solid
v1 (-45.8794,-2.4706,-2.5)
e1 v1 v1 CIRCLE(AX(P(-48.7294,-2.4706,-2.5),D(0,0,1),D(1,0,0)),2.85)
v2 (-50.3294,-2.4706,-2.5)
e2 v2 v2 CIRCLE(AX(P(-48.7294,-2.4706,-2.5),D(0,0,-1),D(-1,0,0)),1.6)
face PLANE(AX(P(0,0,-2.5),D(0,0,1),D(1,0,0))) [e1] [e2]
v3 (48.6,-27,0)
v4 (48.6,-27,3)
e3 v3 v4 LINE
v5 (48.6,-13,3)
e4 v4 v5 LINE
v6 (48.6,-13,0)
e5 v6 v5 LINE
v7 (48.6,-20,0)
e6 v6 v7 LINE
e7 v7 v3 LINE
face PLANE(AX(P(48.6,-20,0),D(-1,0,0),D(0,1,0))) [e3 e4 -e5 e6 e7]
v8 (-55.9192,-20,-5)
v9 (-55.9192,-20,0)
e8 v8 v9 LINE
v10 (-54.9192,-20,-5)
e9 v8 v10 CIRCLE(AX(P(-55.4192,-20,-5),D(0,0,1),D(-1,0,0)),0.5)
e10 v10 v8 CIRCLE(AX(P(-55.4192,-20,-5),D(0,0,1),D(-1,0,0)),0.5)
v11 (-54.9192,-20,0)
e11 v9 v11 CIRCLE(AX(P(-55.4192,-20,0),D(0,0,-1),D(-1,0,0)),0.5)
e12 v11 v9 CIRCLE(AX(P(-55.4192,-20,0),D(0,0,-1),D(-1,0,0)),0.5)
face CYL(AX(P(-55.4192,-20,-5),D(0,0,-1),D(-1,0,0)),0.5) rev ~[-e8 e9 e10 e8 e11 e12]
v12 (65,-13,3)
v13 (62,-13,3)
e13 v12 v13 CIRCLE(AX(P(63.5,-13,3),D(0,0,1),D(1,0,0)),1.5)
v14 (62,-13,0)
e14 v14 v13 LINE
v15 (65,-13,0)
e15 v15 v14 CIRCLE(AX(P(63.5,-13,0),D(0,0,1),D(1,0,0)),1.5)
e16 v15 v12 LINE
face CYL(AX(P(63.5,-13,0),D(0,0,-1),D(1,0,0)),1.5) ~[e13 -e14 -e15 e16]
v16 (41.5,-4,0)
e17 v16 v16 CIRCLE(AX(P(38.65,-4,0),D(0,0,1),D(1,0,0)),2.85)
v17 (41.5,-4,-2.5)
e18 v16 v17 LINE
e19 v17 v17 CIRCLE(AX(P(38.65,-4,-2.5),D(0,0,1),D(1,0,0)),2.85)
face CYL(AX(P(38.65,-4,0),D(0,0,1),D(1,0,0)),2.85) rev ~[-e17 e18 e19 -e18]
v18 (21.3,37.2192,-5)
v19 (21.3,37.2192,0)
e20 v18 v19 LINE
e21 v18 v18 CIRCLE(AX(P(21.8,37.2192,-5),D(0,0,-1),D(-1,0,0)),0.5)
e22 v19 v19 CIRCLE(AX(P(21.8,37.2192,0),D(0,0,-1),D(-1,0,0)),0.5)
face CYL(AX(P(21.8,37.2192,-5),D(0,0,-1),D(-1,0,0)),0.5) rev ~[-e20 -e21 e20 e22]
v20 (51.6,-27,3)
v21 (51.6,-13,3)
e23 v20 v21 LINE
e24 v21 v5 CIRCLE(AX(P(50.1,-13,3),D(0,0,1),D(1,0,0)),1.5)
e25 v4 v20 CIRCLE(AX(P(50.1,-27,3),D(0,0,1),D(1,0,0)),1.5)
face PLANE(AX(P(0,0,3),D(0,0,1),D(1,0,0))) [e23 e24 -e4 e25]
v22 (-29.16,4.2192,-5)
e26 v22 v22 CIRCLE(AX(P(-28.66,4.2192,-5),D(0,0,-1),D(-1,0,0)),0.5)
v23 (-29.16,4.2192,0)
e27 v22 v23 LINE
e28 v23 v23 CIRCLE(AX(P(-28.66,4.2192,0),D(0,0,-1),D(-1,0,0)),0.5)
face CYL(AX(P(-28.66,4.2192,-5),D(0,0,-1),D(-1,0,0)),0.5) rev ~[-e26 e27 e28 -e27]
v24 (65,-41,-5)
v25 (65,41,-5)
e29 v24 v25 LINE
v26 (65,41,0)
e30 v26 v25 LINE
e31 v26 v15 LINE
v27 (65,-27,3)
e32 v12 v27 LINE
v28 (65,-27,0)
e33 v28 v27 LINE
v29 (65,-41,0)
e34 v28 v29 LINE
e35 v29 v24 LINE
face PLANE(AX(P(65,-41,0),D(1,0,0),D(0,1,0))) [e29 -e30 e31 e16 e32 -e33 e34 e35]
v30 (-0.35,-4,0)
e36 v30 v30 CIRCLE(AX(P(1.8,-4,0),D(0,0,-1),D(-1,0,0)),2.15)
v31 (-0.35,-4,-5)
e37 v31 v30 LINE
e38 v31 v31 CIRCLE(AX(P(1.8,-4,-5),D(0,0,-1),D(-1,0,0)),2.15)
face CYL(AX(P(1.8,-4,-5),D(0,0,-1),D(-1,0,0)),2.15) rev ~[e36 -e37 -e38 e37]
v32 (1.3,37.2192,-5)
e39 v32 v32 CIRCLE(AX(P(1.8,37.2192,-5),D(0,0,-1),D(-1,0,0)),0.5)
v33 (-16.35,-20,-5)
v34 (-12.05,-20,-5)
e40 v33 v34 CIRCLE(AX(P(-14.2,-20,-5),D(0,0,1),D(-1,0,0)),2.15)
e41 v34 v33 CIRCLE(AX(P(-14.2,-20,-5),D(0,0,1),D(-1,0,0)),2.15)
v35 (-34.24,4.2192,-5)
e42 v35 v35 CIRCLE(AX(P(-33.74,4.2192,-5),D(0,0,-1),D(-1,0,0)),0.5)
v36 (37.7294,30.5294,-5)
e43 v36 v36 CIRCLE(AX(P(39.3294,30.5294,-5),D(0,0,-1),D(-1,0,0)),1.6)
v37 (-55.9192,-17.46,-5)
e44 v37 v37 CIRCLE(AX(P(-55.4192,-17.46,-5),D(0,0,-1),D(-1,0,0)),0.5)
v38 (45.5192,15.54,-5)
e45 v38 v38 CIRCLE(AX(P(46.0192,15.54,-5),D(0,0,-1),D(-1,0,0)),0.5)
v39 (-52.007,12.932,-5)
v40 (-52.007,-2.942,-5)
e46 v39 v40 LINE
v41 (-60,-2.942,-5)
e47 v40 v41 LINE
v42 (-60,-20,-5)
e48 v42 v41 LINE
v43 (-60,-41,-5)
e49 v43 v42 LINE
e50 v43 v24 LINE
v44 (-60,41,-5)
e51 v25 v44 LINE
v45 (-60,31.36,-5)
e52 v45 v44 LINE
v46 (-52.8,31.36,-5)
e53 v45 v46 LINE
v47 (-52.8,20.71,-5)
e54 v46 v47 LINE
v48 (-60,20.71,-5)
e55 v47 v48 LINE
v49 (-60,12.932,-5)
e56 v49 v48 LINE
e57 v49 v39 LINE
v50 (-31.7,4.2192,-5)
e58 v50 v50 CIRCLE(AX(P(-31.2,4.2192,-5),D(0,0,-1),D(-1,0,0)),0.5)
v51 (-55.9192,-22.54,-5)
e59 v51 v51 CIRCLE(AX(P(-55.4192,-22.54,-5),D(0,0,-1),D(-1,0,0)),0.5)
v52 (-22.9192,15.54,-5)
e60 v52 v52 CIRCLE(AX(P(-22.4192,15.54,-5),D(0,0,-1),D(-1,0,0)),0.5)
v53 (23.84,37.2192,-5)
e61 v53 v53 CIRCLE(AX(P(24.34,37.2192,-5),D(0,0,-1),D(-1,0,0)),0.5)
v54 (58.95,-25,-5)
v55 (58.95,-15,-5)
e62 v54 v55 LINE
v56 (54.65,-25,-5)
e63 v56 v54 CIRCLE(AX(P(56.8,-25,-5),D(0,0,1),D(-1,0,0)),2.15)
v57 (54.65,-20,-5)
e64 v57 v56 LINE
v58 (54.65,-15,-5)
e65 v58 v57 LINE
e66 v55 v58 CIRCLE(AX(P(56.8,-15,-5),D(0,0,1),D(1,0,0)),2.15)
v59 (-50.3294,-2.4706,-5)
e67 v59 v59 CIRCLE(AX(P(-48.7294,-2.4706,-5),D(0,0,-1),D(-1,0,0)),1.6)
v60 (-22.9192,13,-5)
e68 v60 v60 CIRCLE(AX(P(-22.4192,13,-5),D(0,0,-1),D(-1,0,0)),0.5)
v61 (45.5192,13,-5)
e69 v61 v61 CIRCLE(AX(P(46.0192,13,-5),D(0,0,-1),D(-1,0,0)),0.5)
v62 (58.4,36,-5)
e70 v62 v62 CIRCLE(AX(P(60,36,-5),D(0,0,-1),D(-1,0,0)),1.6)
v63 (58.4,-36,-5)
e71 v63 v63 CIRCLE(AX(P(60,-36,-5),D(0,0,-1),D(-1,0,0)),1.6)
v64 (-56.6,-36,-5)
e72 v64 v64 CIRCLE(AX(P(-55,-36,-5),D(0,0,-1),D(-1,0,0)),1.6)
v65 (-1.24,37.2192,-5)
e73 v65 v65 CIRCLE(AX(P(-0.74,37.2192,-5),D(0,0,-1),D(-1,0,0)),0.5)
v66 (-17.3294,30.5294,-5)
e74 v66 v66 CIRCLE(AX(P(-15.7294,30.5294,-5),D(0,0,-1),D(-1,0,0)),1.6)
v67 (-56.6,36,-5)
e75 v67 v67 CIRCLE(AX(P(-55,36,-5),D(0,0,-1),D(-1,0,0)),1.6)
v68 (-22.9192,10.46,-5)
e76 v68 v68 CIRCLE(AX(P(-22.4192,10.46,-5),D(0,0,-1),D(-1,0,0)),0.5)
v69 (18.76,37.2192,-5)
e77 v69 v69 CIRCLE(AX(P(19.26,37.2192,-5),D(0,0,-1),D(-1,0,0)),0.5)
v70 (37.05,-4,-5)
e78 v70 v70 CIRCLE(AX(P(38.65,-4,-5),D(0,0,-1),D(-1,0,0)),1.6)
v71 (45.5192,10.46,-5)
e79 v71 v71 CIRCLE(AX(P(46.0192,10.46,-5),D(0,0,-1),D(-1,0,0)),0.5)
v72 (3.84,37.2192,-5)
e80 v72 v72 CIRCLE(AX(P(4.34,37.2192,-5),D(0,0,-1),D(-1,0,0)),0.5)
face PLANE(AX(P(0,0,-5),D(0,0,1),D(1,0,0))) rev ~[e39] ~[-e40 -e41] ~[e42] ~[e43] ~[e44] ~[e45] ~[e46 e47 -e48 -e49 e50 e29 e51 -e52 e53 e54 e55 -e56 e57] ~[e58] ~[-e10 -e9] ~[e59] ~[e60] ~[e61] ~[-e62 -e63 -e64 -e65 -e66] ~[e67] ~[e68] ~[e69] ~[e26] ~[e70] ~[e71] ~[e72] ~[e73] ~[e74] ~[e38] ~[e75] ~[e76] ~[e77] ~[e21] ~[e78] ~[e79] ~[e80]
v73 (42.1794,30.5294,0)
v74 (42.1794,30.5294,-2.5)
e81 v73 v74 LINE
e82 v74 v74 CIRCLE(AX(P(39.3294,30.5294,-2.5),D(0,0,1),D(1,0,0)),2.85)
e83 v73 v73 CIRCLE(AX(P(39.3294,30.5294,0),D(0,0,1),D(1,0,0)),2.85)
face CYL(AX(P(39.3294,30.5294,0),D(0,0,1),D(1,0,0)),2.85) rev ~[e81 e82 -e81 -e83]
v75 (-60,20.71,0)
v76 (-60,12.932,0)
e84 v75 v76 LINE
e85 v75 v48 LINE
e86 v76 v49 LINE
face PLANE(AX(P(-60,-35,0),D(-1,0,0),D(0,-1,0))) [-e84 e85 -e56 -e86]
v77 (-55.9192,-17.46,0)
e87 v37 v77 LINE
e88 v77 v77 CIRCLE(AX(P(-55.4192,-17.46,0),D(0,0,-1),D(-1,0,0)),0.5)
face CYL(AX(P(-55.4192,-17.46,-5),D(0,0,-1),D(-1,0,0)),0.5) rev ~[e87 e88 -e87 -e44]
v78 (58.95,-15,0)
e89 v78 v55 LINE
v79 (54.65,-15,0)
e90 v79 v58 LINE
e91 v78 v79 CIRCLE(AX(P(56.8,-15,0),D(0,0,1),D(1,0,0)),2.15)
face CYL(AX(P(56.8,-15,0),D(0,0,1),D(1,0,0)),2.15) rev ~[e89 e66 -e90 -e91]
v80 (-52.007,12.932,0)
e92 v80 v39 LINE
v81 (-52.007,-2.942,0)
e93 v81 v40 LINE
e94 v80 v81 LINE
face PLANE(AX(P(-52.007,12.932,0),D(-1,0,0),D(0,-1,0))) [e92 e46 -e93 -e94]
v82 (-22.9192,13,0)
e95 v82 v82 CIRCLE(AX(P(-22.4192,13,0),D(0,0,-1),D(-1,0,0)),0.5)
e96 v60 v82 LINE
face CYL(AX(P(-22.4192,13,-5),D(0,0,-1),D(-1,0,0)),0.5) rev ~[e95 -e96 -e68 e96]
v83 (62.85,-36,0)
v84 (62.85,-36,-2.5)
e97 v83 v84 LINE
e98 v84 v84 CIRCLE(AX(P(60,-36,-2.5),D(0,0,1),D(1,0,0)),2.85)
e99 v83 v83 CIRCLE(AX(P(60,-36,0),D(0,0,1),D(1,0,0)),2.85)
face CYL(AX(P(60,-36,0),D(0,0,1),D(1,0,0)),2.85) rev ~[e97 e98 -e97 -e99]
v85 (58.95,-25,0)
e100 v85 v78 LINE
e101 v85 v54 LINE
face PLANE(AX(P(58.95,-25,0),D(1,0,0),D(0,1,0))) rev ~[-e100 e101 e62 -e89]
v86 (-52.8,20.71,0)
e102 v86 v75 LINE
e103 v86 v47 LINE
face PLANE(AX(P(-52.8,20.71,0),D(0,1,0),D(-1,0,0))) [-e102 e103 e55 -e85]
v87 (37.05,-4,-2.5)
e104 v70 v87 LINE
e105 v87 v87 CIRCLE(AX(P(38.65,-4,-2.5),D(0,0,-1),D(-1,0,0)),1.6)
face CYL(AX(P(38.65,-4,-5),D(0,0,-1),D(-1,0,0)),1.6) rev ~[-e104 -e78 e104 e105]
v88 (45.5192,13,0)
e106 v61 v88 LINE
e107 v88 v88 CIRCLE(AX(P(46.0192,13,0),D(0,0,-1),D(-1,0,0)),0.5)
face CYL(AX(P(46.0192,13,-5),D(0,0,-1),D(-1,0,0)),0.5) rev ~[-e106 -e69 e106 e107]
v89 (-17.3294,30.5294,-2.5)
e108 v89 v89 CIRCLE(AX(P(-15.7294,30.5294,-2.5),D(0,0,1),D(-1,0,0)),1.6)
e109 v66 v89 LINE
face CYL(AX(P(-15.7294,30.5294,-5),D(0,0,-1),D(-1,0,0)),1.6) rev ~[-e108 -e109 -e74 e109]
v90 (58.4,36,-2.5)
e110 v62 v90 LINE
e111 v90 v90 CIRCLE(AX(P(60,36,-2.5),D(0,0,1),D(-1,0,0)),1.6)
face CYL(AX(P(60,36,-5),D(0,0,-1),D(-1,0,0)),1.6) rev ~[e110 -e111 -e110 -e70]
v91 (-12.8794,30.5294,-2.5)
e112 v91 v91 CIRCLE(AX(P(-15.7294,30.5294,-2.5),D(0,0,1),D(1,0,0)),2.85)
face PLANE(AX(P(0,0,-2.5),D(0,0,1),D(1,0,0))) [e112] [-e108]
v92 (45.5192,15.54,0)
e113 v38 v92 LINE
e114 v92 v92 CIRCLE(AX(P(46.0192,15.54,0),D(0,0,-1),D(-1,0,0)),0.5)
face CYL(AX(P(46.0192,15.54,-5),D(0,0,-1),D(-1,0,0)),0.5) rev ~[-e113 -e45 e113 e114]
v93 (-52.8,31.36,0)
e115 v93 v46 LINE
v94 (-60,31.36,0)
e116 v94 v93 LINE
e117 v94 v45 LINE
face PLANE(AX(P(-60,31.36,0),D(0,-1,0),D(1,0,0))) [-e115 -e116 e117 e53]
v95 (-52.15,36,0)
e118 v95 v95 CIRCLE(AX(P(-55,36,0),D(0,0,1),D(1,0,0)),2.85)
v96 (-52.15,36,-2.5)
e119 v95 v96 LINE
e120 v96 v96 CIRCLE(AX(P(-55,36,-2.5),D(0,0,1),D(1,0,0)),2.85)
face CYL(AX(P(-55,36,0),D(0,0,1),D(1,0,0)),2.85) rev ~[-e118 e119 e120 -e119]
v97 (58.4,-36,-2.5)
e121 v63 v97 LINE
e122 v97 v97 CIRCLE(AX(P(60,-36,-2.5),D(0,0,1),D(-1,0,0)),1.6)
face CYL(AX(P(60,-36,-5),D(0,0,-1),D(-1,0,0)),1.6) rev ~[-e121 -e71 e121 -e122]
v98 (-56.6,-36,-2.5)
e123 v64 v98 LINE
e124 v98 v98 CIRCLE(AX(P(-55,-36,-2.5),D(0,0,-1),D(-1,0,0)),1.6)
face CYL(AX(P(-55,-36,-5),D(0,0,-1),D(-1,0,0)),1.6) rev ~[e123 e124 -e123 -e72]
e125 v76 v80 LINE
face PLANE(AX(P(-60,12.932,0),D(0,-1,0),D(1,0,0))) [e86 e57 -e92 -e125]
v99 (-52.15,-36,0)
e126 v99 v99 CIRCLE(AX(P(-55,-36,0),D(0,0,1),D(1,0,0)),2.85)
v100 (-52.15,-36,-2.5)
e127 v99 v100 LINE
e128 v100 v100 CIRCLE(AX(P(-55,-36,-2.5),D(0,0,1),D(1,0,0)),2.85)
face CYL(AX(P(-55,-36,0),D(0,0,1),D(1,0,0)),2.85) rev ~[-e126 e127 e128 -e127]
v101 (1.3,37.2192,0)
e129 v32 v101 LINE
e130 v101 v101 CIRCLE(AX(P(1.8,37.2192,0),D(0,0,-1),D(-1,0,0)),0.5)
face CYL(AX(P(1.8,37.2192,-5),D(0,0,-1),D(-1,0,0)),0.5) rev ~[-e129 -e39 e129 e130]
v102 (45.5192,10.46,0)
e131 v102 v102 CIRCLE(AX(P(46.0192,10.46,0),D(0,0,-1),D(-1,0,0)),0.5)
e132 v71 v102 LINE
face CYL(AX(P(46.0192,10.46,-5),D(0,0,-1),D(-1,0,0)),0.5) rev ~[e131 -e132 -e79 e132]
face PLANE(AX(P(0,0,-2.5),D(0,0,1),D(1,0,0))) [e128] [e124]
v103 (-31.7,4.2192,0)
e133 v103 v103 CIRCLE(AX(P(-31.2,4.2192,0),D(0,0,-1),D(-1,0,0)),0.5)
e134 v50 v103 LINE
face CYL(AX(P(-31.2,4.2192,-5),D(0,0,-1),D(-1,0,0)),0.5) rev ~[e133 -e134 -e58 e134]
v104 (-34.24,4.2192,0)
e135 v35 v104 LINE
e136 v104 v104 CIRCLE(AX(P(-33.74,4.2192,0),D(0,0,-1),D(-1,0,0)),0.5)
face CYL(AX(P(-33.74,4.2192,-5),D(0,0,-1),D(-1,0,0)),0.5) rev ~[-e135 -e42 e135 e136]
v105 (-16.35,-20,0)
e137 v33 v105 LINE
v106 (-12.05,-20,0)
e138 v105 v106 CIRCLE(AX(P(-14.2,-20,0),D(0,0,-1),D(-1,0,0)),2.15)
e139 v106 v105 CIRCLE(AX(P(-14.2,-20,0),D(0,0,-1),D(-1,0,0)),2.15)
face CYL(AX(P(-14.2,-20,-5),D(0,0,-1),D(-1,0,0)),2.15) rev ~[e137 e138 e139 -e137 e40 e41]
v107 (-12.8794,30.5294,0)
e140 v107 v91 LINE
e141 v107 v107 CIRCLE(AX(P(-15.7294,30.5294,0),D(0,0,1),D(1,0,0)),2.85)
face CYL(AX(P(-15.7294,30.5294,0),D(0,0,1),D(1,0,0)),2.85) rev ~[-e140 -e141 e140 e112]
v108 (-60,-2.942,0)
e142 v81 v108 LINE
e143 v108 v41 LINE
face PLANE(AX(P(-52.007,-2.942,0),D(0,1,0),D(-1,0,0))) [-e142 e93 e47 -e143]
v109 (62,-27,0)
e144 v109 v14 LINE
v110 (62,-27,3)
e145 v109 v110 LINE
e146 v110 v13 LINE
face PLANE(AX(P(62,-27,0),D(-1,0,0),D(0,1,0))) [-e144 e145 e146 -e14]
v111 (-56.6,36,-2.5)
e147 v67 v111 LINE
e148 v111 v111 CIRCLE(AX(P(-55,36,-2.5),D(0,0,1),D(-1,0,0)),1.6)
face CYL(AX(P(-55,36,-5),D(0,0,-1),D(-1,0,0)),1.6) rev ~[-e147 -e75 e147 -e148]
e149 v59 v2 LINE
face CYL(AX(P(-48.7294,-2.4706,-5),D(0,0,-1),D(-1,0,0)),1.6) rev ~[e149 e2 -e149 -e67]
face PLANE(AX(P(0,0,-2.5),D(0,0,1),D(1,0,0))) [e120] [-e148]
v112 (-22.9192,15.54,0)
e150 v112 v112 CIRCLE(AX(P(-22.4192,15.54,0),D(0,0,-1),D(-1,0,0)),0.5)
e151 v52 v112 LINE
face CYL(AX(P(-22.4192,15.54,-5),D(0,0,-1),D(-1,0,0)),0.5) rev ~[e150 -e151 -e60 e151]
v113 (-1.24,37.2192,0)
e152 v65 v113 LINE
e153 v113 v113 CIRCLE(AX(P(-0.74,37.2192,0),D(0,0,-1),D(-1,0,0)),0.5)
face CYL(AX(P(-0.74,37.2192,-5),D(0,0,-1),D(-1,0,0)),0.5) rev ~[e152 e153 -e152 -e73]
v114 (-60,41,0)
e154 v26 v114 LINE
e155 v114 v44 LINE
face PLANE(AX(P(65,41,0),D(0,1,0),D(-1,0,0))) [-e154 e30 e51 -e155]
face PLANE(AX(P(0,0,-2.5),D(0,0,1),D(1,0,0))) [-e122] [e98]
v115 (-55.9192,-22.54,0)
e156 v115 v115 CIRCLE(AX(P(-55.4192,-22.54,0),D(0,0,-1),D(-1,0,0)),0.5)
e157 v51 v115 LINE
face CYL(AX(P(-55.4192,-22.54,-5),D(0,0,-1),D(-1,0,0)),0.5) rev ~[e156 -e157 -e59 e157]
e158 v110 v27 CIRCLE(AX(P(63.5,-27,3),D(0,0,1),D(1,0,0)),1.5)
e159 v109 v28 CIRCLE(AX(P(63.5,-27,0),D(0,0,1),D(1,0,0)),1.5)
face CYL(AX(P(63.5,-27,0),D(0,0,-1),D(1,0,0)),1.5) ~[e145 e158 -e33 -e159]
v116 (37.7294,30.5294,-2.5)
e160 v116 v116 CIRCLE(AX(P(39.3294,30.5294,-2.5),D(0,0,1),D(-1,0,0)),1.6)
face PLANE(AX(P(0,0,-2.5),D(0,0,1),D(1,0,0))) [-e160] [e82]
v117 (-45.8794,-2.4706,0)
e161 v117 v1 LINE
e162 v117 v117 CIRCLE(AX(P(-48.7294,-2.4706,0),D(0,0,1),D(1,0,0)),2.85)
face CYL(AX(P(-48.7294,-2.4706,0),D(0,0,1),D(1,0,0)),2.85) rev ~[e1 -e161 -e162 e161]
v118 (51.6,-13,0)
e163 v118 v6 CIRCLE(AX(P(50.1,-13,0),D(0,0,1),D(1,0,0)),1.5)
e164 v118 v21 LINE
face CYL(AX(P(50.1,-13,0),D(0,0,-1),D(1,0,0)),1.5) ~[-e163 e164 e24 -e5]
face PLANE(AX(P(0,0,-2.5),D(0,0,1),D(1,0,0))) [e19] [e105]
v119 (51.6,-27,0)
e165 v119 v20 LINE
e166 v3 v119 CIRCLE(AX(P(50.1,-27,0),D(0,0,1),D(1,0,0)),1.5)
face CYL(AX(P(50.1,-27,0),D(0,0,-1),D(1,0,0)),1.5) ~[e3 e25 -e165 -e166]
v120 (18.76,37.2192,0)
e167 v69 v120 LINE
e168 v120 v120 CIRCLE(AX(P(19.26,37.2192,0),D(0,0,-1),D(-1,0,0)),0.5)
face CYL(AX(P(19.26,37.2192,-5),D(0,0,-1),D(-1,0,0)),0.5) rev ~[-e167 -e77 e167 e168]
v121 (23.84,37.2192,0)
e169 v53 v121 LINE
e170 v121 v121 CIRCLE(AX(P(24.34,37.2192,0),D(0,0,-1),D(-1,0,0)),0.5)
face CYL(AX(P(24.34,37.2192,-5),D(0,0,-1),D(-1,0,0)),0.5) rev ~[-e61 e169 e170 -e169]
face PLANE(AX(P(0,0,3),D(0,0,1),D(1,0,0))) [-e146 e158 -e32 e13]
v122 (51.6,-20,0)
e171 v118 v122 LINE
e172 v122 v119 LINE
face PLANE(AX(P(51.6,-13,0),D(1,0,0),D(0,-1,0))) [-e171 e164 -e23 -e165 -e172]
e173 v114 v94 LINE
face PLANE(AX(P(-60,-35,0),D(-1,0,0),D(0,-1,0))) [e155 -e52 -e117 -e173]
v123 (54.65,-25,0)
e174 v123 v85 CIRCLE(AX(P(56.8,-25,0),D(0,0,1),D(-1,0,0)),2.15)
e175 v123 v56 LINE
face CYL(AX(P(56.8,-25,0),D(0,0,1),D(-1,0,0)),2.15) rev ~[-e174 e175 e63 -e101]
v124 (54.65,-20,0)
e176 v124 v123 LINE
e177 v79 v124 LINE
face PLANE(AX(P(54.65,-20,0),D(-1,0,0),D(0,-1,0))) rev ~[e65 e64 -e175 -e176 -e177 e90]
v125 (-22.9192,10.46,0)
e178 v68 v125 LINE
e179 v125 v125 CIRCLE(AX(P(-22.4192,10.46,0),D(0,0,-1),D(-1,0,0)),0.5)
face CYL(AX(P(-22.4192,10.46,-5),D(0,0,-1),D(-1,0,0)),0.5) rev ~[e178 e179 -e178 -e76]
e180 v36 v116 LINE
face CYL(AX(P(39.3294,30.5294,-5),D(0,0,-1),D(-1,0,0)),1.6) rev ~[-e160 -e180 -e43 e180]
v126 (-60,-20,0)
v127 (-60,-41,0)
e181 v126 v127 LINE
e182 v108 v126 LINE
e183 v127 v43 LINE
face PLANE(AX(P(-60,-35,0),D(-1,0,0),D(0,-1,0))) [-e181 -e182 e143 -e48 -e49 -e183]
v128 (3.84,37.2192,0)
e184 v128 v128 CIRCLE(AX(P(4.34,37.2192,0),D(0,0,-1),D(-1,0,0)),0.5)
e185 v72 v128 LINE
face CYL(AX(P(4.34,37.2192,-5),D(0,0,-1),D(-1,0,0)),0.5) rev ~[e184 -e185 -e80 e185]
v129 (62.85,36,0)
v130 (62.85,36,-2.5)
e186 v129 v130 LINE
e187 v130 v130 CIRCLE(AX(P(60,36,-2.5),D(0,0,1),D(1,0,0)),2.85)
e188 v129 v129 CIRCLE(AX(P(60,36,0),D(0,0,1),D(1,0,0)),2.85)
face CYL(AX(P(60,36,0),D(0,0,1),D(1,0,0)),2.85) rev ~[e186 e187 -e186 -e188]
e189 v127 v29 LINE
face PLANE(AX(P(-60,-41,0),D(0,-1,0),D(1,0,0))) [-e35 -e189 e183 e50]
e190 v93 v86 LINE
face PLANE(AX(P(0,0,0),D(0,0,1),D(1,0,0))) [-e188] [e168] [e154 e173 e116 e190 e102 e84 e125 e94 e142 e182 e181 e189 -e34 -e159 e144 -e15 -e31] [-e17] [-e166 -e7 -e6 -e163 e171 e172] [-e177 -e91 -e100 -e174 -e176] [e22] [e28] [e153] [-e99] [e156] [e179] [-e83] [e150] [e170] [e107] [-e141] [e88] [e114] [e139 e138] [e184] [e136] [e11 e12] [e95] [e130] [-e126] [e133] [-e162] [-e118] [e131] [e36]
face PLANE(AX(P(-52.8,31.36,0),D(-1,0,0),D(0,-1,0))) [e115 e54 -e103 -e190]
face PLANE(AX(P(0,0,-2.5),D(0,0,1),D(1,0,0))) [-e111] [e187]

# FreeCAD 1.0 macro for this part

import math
import FreeCAD as App
import Part
import Sketcher

V = App.Vector

doc = App.newDocument("Part")
params = doc.addObject("Spreadsheet::Sheet", "Params")
for row, (alias, value) in enumerate([
    ("sketch1_width", "125 mm"),
    ("sketch1_height", "5 mm"),
    ("sketch1_radius", "2.15 mm"),
    ("sketch1_height2", "82 mm"),
    ("sketch1_height3", "61 mm"),
    ("pad1_length", "5 mm"),
    ("sketch2_radius", "1.5 mm"),
    ("sketch2_height", "14 mm"),
    ("pad2_length", "3 mm"),
    ("sketch3_diameter", "1 mm"),
    ("sketch3_diameter2", "3.2 mm"),
    ("sketch3_diameter3", "4.3 mm"),
    ("sketch4_diameter", "5.7 mm"),
    ("sketch4_diameter2", "3.2 mm"),
    ("pocket2_length", "2.5 mm"),
    ("sketch5_width", "7.2 mm"),
    ("sketch5_height", "10.65 mm"),
], start=1):
    params.set(f"A{row}", alias)
    params.set(f"B{row}", "=" + value)
    params.setAlias(f"B{row}", alias)

body = doc.addObject("PartDesign::Body", "Body")

# Sketch on XY plane
sketch1 = body.newObject("Sketcher::SketchObject", "Sketch")
sketch1.AttachmentSupport = (doc.getObject("XY_Plane"), [""])
sketch1.MapMode = "FlatFace"
sketch1.addGeometry([
    Part.LineSegment(V(65, -41, 0), V(65, 41, 0)),  # 0
    Part.LineSegment(V(65, 41, 0), V(-60, 41, 0)),  # 1
    Part.LineSegment(V(-60, 41, 0), V(-60, -20, 0)),  # 2
    Part.LineSegment(V(-60, -20, 0), V(-60, -41, 0)),  # 3
    Part.LineSegment(V(-60, -41, 0), V(65, -41, 0)),  # 4
    Part.LineSegment(V(54.65, -25, 0), V(54.65, -20, 0)),  # 5
    Part.LineSegment(V(54.65, -20, 0), V(54.65, -15, 0)),  # 6
    Part.ArcOfCircle(Part.Circle(V(56.8, -15, 0), V(0, 0, 1), 2.15), math.radians(0), math.radians(180)),  # 7
    Part.LineSegment(V(58.95, -15, 0), V(58.95, -25, 0)),  # 8
    Part.ArcOfCircle(Part.Circle(V(56.8, -25, 0), V(0, 0, 1), 2.15), math.radians(180), math.radians(360)),  # 9
], False)
sketch1.addConstraint([
    Sketcher.Constraint("Coincident", 0, 2, 1, 1),
    Sketcher.Constraint("Coincident", 1, 2, 2, 1),
    Sketcher.Constraint("Coincident", 2, 2, 3, 1),
    Sketcher.Constraint("Coincident", 3, 2, 4, 1),
    Sketcher.Constraint("Coincident", 4, 2, 0, 1),
    Sketcher.Constraint("Coincident", 5, 2, 6, 1),
    Sketcher.Constraint("Tangent", 6, 2, 7, 2),
    Sketcher.Constraint("Tangent", 7, 1, 8, 1),
    Sketcher.Constraint("Tangent", 8, 2, 9, 2),
    Sketcher.Constraint("Tangent", 9, 1, 5, 1),
    Sketcher.Constraint("Vertical", 0),
    Sketcher.Constraint("Horizontal", 1),
    Sketcher.Constraint("Vertical", 2),
    Sketcher.Constraint("Vertical", 3),
    Sketcher.Constraint("Horizontal", 4),
    Sketcher.Constraint("Vertical", 5),
    Sketcher.Constraint("Vertical", 6),
    Sketcher.Constraint("Vertical", 8),
    Sketcher.Constraint("Horizontal", 2, 2, 5, 2),
    Sketcher.Constraint("Equal", 5, 6),
    Sketcher.Constraint("DistanceX", 1, 2, 1, 1, 125.0),
    Sketcher.Constraint("DistanceY", 5, 1, 5, 2, 5.0),
    Sketcher.Constraint("Radius", 7, 2.15),
    Sketcher.Constraint("DistanceY", 0, 1, 0, 2, 82.0),
    Sketcher.Constraint("DistanceY", 2, 2, 2, 1, 61.0),
    Sketcher.Constraint("DistanceY", 7, 3, -1, 1, 15.0),
    Sketcher.Constraint("DistanceX", -1, 1, 0, 2, 65.0),
    Sketcher.Constraint("DistanceX", -1, 1, 7, 3, 56.8),
])
sketch1.setExpression("Constraints[20]", "Params.sketch1_width")
sketch1.setExpression("Constraints[21]", "Params.sketch1_height")
sketch1.setExpression("Constraints[22]", "Params.sketch1_radius")
sketch1.setExpression("Constraints[23]", "Params.sketch1_height2")
sketch1.setExpression("Constraints[24]", "Params.sketch1_height3")
pad1 = body.newObject("PartDesign::Pad", "Pad")
pad1.Profile = sketch1
pad1.setExpression("Length", "Params.pad1_length")
pad1.Reversed = True

# Sketch on XY plane
sketch2 = body.newObject("Sketcher::SketchObject", "Sketch001")
sketch2.AttachmentSupport = (doc.getObject("XY_Plane"), [""])
sketch2.MapMode = "FlatFace"
sketch2.addGeometry([
    Part.LineSegment(V(48.6, -13, 0), V(48.6, -27, 0)),  # 0
    Part.ArcOfCircle(Part.Circle(V(50.1, -27, 0), V(0, 0, 1), 1.5), math.radians(180), math.radians(360)),  # 1
    Part.LineSegment(V(51.6, -27, 0), V(51.6, -13, 0)),  # 2
    Part.ArcOfCircle(Part.Circle(V(50.1, -13, 0), V(0, 0, 1), 1.5), math.radians(0), math.radians(180)),  # 3
    Part.LineSegment(V(62, -13, 0), V(62, -27, 0)),  # 4
    Part.ArcOfCircle(Part.Circle(V(63.5, -27, 0), V(0, 0, 1), 1.5), math.radians(180), math.radians(360)),  # 5
    Part.LineSegment(V(65, -27, 0), V(65, -13, 0)),  # 6
    Part.ArcOfCircle(Part.Circle(V(63.5, -13, 0), V(0, 0, 1), 1.5), math.radians(0), math.radians(180)),  # 7
], False)
sketch2.addConstraint([
    Sketcher.Constraint("Tangent", 0, 2, 1, 1),
    Sketcher.Constraint("Tangent", 1, 2, 2, 1),
    Sketcher.Constraint("Tangent", 2, 2, 3, 1),
    Sketcher.Constraint("Tangent", 3, 2, 0, 1),
    Sketcher.Constraint("Tangent", 4, 2, 5, 1),
    Sketcher.Constraint("Tangent", 5, 2, 6, 1),
    Sketcher.Constraint("Tangent", 6, 2, 7, 1),
    Sketcher.Constraint("Tangent", 7, 2, 4, 1),
    Sketcher.Constraint("Vertical", 0),
    Sketcher.Constraint("Vertical", 2),
    Sketcher.Constraint("Vertical", 4),
    Sketcher.Constraint("Vertical", 6),
    Sketcher.Constraint("Equal", 3, 5),
    Sketcher.Constraint("Horizontal", 1, 3, 5, 3),
    Sketcher.Constraint("Horizontal", 3, 3, 7, 3),
    Sketcher.Constraint("Radius", 1, 1.5),
    Sketcher.Constraint("DistanceY", 0, 2, 0, 1, 14.0),
    Sketcher.Constraint("DistanceY", 1, 3, -1, 1, 27.0),
    Sketcher.Constraint("DistanceX", -1, 1, 4, 2, 62.0),
    Sketcher.Constraint("DistanceX", -1, 1, 1, 3, 50.1),
])
sketch2.setExpression("Constraints[15]", "Params.sketch2_radius")
sketch2.setExpression("Constraints[16]", "Params.sketch2_height")
pad2 = body.newObject("PartDesign::Pad", "Pad001")
pad2.Profile = sketch2
pad2.setExpression("Length", "Params.pad2_length")

# Sketch on XY plane
sketch3 = body.newObject("Sketcher::SketchObject", "Sketch002")
sketch3.AttachmentSupport = (doc.getObject("XY_Plane"), [""])
sketch3.MapMode = "FlatFace"
sketch3.AttachmentOffset = App.Placement(V(0, 0, -5), App.Rotation())
sketch3.addGeometry([
    Part.Circle(V(-55, 36, 0), V(0, 0, 1), 1.6),  # 0
    Part.Circle(V(1.8, -4, 0), V(0, 0, 1), 2.15),  # 1
    Part.Circle(V(-14.2, -20, 0), V(0, 0, 1), 2.15),  # 2
    Part.Circle(V(-55.4192, -22.54, 0), V(0, 0, 1), 0.5),  # 3
    Part.Circle(V(-55.4192, -20, 0), V(0, 0, 1), 0.5),  # 4
    Part.Circle(V(-55.4192, -17.46, 0), V(0, 0, 1), 0.5),  # 5
    Part.Circle(V(-33.74, 4.2192, 0), V(0, 0, 1), 0.5),  # 6
    Part.Circle(V(-31.2, 4.2192, 0), V(0, 0, 1), 0.5),  # 7
    Part.Circle(V(-28.66, 4.2192, 0), V(0, 0, 1), 0.5),  # 8
    Part.Circle(V(46.0192, 10.46, 0), V(0, 0, 1), 0.5),  # 9
    Part.Circle(V(46.0192, 13, 0), V(0, 0, 1), 0.5),  # 10
    Part.Circle(V(46.0192, 15.54, 0), V(0, 0, 1), 0.5),  # 11
    Part.Circle(V(-0.74, 37.2192, 0), V(0, 0, 1), 0.5),  # 12
    Part.Circle(V(1.8, 37.2192, 0), V(0, 0, 1), 0.5),  # 13
    Part.Circle(V(4.34, 37.2192, 0), V(0, 0, 1), 0.5),  # 14
    Part.Circle(V(19.26, 37.2192, 0), V(0, 0, 1), 0.5),  # 15
    Part.Circle(V(21.8, 37.2192, 0), V(0, 0, 1), 0.5),  # 16
    Part.Circle(V(24.34, 37.2192, 0), V(0, 0, 1), 0.5),  # 17
    Part.Circle(V(-55, -36, 0), V(0, 0, 1), 1.6),  # 18
    Part.Circle(V(60, 36, 0), V(0, 0, 1), 1.6),  # 19
    Part.Circle(V(38.65, -4, 0), V(0, 0, 1), 1.6),  # 20
    Part.Circle(V(39.3294, 30.5294, 0), V(0, 0, 1), 1.6),  # 21
    Part.Circle(V(-15.7294, 30.5294, 0), V(0, 0, 1), 1.6),  # 22
    Part.Circle(V(-48.7294, -2.4706, 0), V(0, 0, 1), 1.6),  # 23
    Part.Circle(V(-22.4192, 15.54, 0), V(0, 0, 1), 0.5),  # 24
    Part.Circle(V(-22.4192, 13, 0), V(0, 0, 1), 0.5),  # 25
    Part.Circle(V(-22.4192, 10.46, 0), V(0, 0, 1), 0.5),  # 26
    Part.Circle(V(60, -36, 0), V(0, 0, 1), 1.6),  # 27
], False)
sketch3.addConstraint([
    Sketcher.Constraint("Equal", 1, 2),
    Sketcher.Constraint("Equal", 3, 4),
    Sketcher.Constraint("Equal", 4, 5),
    Sketcher.Constraint("Equal", 5, 6),
    Sketcher.Constraint("Equal", 6, 7),
    Sketcher.Constraint("Equal", 7, 8),
    Sketcher.Constraint("Equal", 8, 9),
    Sketcher.Constraint("Equal", 9, 10),
    Sketcher.Constraint("Equal", 10, 11),
    Sketcher.Constraint("Equal", 11, 12),
    Sketcher.Constraint("Equal", 12, 13),
    Sketcher.Constraint("Equal", 13, 14),
    Sketcher.Constraint("Equal", 14, 15),
    Sketcher.Constraint("Equal", 15, 16),
    Sketcher.Constraint("Equal", 16, 17),
    Sketcher.Constraint("Equal", 0, 18),
    Sketcher.Constraint("Equal", 18, 19),
    Sketcher.Constraint("Equal", 19, 20),
    Sketcher.Constraint("Equal", 20, 21),
    Sketcher.Constraint("Equal", 21, 22),
    Sketcher.Constraint("Equal", 22, 23),
    Sketcher.Constraint("Equal", 17, 24),
    Sketcher.Constraint("Equal", 24, 25),
    Sketcher.Constraint("Equal", 25, 26),
    Sketcher.Constraint("Equal", 23, 27),
    Sketcher.Constraint("Symmetric", 0, 3, 18, 3, -1),
    Sketcher.Constraint("Symmetric", 19, 3, 27, 3, -1),
    Sketcher.Constraint("Horizontal", 2, 3, 4, 3),
    Sketcher.Constraint("Horizontal", 6, 3, 7, 3),
    Sketcher.Constraint("Horizontal", 7, 3, 8, 3),
    Sketcher.Constraint("Horizontal", 12, 3, 13, 3),
    Sketcher.Constraint("Horizontal", 13, 3, 14, 3),
    Sketcher.Constraint("Horizontal", 14, 3, 15, 3),
    Sketcher.Constraint("Horizontal", 15, 3, 16, 3),
    Sketcher.Constraint("Horizontal", 16, 3, 17, 3),
    Sketcher.Constraint("Horizontal", 0, 3, 19, 3),
    Sketcher.Constraint("Horizontal", 1, 3, 20, 3),
    Sketcher.Constraint("Horizontal", 21, 3, 22, 3),
    Sketcher.Constraint("Horizontal", 11, 3, 24, 3),
    Sketcher.Constraint("Horizontal", 10, 3, 25, 3),
    Sketcher.Constraint("Horizontal", 9, 3, 26, 3),
    Sketcher.Constraint("Vertical", 3, 3, 4, 3),
    Sketcher.Constraint("Vertical", 4, 3, 5, 3),
    Sketcher.Constraint("Vertical", 9, 3, 10, 3),
    Sketcher.Constraint("Vertical", 10, 3, 11, 3),
    Sketcher.Constraint("Vertical", 1, 3, 13, 3),
    Sketcher.Constraint("Vertical", 24, 3, 25, 3),
    Sketcher.Constraint("Vertical", 25, 3, 26, 3),
    Sketcher.Constraint("Diameter", 3, 1.0),
    Sketcher.Constraint("Diameter", 0, 3.2),
    Sketcher.Constraint("Diameter", 1, 4.3),
    Sketcher.Constraint("DistanceX", 0, 3, -1, 1, 55.0),
    Sketcher.Constraint("DistanceY", -1, 1, 0, 3, 36.0),
    Sketcher.Constraint("DistanceY", 1, 3, -1, 1, 4.0),
    Sketcher.Constraint("DistanceY", 2, 3, -1, 1, 20.0),
    Sketcher.Constraint("DistanceY", -1, 1, 10, 3, 13.0),
    Sketcher.Constraint("DistanceX", -1, 1, 19, 3, 60.0),
    Sketcher.Constraint("DistanceX", 2, 3, 1, 3, 16.0),
    Sketcher.Constraint("DistanceX", 7, 3, 2, 3, 17.0),
    Sketcher.Constraint("DistanceY", 8, 3, 12, 3, 33.0),
    Sketcher.Constraint("DistanceX", 6, 3, 12, 3, 33.0),
    Sketcher.Constraint("DistanceX", 8, 3, 14, 3, 33.0),
    Sketcher.Constraint("DistanceX", 12, 3, 15, 3, 20.0),
    Sketcher.Constraint("DistanceX", 13, 3, 16, 3, 20.0),
    Sketcher.Constraint("DistanceX", 14, 3, 17, 3, 20.0),
    Sketcher.Constraint("DistanceX", -1, 1, 1, 3, 1.8),
    Sketcher.Constraint("DistanceY", 3, 3, -1, 1, 22.54),
    Sketcher.Constraint("DistanceY", 5, 3, -1, 1, 17.46),
    Sketcher.Constraint("DistanceX", 6, 3, -1, 1, 33.74),
    Sketcher.Constraint("DistanceX", 8, 3, -1, 1, 28.66),
    Sketcher.Constraint("DistanceY", -1, 1, 9, 3, 10.46),
    Sketcher.Constraint("DistanceY", -1, 1, 11, 3, 15.54),
    Sketcher.Constraint("DistanceX", -1, 1, 20, 3, 38.65),
    Sketcher.Constraint("DistanceX", 3, 3, -1, 1, 55.4192),
    Sketcher.Constraint("DistanceY", -1, 1, 6, 3, 4.2192),
    Sketcher.Constraint("DistanceX", -1, 1, 9, 3, 46.0192),
    Sketcher.Constraint("DistanceX", -1, 1, 21, 3, 39.3294),
    Sketcher.Constraint("DistanceY", -1, 1, 21, 3, 30.5294),
    Sketcher.Constraint("DistanceX", 22, 3, -1, 1, 15.7294),
    Sketcher.Constraint("DistanceX", 23, 3, -1, 1, 48.7294),
    Sketcher.Constraint("DistanceY", 23, 3, -1, 1, 2.4706),
    Sketcher.Constraint("DistanceX", 24, 3, -1, 1, 22.4192),
])
sketch3.setExpression("Constraints[48]", "Params.sketch3_diameter")
sketch3.setExpression("Constraints[49]", "Params.sketch3_diameter2")
sketch3.setExpression("Constraints[50]", "Params.sketch3_diameter3")
pocket1 = body.newObject("PartDesign::Pocket", "Pocket")
pocket1.Profile = sketch3
pocket1.Type = "UpToFirst"
pocket1.Reversed = True

# Sketch on XY plane
sketch4 = body.newObject("Sketcher::SketchObject", "Sketch003")
sketch4.AttachmentSupport = (doc.getObject("XY_Plane"), [""])
sketch4.MapMode = "FlatFace"
sketch4.addGeometry([
    Part.Circle(V(-55, 36, 0), V(0, 0, 1), 2.85),  # 0
    Part.Circle(V(-55, 36, 0), V(0, 0, 1), 1.6),  # 1
    Part.Circle(V(-15.7294, 30.5294, 0), V(0, 0, 1), 2.85),  # 2
    Part.Circle(V(-15.7294, 30.5294, 0), V(0, 0, 1), 1.6),  # 3
    Part.Circle(V(39.3294, 30.5294, 0), V(0, 0, 1), 2.85),  # 4
    Part.Circle(V(39.3294, 30.5294, 0), V(0, 0, 1), 1.6),  # 5
    Part.Circle(V(60, 36, 0), V(0, 0, 1), 2.85),  # 6
    Part.Circle(V(60, 36, 0), V(0, 0, 1), 1.6),  # 7
    Part.Circle(V(-48.7294, -2.4706, 0), V(0, 0, 1), 2.85),  # 8
    Part.Circle(V(38.65, -4, 0), V(0, 0, 1), 2.85),  # 9
    Part.Circle(V(-55, -36, 0), V(0, 0, 1), 2.85),  # 10
    Part.Circle(V(60, -36, 0), V(0, 0, 1), 2.85),  # 11
    Part.Circle(V(60, -36, 0), V(0, 0, 1), 1.6),  # 12
], False)
sketch4.addConstraint([
    Sketcher.Constraint("Coincident", 1, 3, 0, 3),
    Sketcher.Constraint("Coincident", 3, 3, 2, 3),
    Sketcher.Constraint("Coincident", 5, 3, 4, 3),
    Sketcher.Constraint("Coincident", 7, 3, 6, 3),
    Sketcher.Constraint("Coincident", 12, 3, 11, 3),
    Sketcher.Constraint("Equal", 0, 2),
    Sketcher.Constraint("Equal", 1, 3),
    Sketcher.Constraint("Equal", 2, 4),
    Sketcher.Constraint("Equal", 3, 5),
    Sketcher.Constraint("Equal", 4, 6),
    Sketcher.Constraint("Equal", 5, 7),
    Sketcher.Constraint("Equal", 6, 8),
    Sketcher.Constraint("Equal", 8, 9),
    Sketcher.Constraint("Equal", 9, 10),
    Sketcher.Constraint("Equal", 10, 11),
    Sketcher.Constraint("Equal", 7, 12),
    Sketcher.Constraint("Symmetric", 0, 3, 10, 3, -1),
    Sketcher.Constraint("Symmetric", 6, 3, 11, 3, -1),
    Sketcher.Constraint("Horizontal", 3, 3, 4, 3),
    Sketcher.Constraint("Horizontal", 1, 3, 6, 3),
    Sketcher.Constraint("Diameter", 0, 5.7),
    Sketcher.Constraint("Diameter", 1, 3.2),
    Sketcher.Constraint("DistanceX", 0, 3, -1, 1, 55.0),
    Sketcher.Constraint("DistanceY", -1, 1, 0, 3, 36.0),
    Sketcher.Constraint("DistanceX", -1, 1, 6, 3, 60.0),
    Sketcher.Constraint("DistanceY", 9, 3, -1, 1, 4.0),
    Sketcher.Constraint("DistanceX", 8, 3, 2, 3, 33.0),
    Sketcher.Constraint("DistanceY", 8, 3, 2, 3, 33.0),
    Sketcher.Constraint("DistanceX", -1, 1, 9, 3, 38.65),
    Sketcher.Constraint("DistanceX", 2, 3, -1, 1, 15.7294),
    Sketcher.Constraint("DistanceY", -1, 1, 2, 3, 30.5294),
    Sketcher.Constraint("DistanceX", -1, 1, 4, 3, 39.3294),
])
sketch4.setExpression("Constraints[20]", "Params.sketch4_diameter")
sketch4.setExpression("Constraints[21]", "Params.sketch4_diameter2")
pocket2 = body.newObject("PartDesign::Pocket", "Pocket001")
pocket2.Profile = sketch4
pocket2.setExpression("Length", "Params.pocket2_length")

# Sketch on XY plane
sketch5 = body.newObject("Sketcher::SketchObject", "Sketch004")
sketch5.AttachmentSupport = (doc.getObject("XY_Plane"), [""])
sketch5.MapMode = "FlatFace"
sketch5.addGeometry([
    Part.LineSegment(V(-52.007, 12.932, 0), V(-60, 12.932, 0)),  # 0
    Part.LineSegment(V(-60, 12.932, 0), V(-60, -2.942, 0)),  # 1
    Part.LineSegment(V(-60, -2.942, 0), V(-52.007, -2.942, 0)),  # 2
    Part.LineSegment(V(-52.007, -2.942, 0), V(-52.007, 12.932, 0)),  # 3
    Part.LineSegment(V(-52.8, 31.36, 0), V(-60, 31.36, 0)),  # 4
    Part.LineSegment(V(-60, 31.36, 0), V(-60, 20.71, 0)),  # 5
    Part.LineSegment(V(-60, 20.71, 0), V(-52.8, 20.71, 0)),  # 6
    Part.LineSegment(V(-52.8, 20.71, 0), V(-52.8, 31.36, 0)),  # 7
], False)
sketch5.addConstraint([
    Sketcher.Constraint("Coincident", 0, 2, 1, 1),
    Sketcher.Constraint("Coincident", 1, 2, 2, 1),
    Sketcher.Constraint("Coincident", 2, 2, 3, 1),
    Sketcher.Constraint("Coincident", 3, 2, 0, 1),
    Sketcher.Constraint("Coincident", 4, 2, 5, 1),
    Sketcher.Constraint("Coincident", 5, 2, 6, 1),
    Sketcher.Constraint("Coincident", 6, 2, 7, 1),
    Sketcher.Constraint("Coincident", 7, 2, 4, 1),
    Sketcher.Constraint("Horizontal", 0),
    Sketcher.Constraint("Vertical", 1),
    Sketcher.Constraint("Horizontal", 2),
    Sketcher.Constraint("Vertical", 3),
    Sketcher.Constraint("Horizontal", 4),
    Sketcher.Constraint("Vertical", 5),
    Sketcher.Constraint("Horizontal", 6),
    Sketcher.Constraint("Vertical", 7),
    Sketcher.Constraint("Vertical", 1, 2, 4, 2),
    Sketcher.Constraint("DistanceX", 4, 2, 4, 1, 7.2),
    Sketcher.Constraint("DistanceX", 0, 2, -1, 1, 60.0),
    Sketcher.Constraint("DistanceY", 5, 2, 5, 1, 10.65),
    Sketcher.Constraint("DistanceX", 0, 2, 0, 1, 7.993),
    Sketcher.Constraint("DistanceY", 1, 2, 1, 1, 15.874),
    Sketcher.Constraint("DistanceY", -1, 1, 4, 2, 31.36),
    Sketcher.Constraint("DistanceY", -1, 1, 0, 2, 12.932),
])
sketch5.setExpression("Constraints[17]", "Params.sketch5_width")
sketch5.setExpression("Constraints[19]", "Params.sketch5_height")
pocket3 = body.newObject("PartDesign::Pocket", "Pocket002")
pocket3.Profile = sketch5
pocket3.Type = "ThroughAll"

doc.recompute()
